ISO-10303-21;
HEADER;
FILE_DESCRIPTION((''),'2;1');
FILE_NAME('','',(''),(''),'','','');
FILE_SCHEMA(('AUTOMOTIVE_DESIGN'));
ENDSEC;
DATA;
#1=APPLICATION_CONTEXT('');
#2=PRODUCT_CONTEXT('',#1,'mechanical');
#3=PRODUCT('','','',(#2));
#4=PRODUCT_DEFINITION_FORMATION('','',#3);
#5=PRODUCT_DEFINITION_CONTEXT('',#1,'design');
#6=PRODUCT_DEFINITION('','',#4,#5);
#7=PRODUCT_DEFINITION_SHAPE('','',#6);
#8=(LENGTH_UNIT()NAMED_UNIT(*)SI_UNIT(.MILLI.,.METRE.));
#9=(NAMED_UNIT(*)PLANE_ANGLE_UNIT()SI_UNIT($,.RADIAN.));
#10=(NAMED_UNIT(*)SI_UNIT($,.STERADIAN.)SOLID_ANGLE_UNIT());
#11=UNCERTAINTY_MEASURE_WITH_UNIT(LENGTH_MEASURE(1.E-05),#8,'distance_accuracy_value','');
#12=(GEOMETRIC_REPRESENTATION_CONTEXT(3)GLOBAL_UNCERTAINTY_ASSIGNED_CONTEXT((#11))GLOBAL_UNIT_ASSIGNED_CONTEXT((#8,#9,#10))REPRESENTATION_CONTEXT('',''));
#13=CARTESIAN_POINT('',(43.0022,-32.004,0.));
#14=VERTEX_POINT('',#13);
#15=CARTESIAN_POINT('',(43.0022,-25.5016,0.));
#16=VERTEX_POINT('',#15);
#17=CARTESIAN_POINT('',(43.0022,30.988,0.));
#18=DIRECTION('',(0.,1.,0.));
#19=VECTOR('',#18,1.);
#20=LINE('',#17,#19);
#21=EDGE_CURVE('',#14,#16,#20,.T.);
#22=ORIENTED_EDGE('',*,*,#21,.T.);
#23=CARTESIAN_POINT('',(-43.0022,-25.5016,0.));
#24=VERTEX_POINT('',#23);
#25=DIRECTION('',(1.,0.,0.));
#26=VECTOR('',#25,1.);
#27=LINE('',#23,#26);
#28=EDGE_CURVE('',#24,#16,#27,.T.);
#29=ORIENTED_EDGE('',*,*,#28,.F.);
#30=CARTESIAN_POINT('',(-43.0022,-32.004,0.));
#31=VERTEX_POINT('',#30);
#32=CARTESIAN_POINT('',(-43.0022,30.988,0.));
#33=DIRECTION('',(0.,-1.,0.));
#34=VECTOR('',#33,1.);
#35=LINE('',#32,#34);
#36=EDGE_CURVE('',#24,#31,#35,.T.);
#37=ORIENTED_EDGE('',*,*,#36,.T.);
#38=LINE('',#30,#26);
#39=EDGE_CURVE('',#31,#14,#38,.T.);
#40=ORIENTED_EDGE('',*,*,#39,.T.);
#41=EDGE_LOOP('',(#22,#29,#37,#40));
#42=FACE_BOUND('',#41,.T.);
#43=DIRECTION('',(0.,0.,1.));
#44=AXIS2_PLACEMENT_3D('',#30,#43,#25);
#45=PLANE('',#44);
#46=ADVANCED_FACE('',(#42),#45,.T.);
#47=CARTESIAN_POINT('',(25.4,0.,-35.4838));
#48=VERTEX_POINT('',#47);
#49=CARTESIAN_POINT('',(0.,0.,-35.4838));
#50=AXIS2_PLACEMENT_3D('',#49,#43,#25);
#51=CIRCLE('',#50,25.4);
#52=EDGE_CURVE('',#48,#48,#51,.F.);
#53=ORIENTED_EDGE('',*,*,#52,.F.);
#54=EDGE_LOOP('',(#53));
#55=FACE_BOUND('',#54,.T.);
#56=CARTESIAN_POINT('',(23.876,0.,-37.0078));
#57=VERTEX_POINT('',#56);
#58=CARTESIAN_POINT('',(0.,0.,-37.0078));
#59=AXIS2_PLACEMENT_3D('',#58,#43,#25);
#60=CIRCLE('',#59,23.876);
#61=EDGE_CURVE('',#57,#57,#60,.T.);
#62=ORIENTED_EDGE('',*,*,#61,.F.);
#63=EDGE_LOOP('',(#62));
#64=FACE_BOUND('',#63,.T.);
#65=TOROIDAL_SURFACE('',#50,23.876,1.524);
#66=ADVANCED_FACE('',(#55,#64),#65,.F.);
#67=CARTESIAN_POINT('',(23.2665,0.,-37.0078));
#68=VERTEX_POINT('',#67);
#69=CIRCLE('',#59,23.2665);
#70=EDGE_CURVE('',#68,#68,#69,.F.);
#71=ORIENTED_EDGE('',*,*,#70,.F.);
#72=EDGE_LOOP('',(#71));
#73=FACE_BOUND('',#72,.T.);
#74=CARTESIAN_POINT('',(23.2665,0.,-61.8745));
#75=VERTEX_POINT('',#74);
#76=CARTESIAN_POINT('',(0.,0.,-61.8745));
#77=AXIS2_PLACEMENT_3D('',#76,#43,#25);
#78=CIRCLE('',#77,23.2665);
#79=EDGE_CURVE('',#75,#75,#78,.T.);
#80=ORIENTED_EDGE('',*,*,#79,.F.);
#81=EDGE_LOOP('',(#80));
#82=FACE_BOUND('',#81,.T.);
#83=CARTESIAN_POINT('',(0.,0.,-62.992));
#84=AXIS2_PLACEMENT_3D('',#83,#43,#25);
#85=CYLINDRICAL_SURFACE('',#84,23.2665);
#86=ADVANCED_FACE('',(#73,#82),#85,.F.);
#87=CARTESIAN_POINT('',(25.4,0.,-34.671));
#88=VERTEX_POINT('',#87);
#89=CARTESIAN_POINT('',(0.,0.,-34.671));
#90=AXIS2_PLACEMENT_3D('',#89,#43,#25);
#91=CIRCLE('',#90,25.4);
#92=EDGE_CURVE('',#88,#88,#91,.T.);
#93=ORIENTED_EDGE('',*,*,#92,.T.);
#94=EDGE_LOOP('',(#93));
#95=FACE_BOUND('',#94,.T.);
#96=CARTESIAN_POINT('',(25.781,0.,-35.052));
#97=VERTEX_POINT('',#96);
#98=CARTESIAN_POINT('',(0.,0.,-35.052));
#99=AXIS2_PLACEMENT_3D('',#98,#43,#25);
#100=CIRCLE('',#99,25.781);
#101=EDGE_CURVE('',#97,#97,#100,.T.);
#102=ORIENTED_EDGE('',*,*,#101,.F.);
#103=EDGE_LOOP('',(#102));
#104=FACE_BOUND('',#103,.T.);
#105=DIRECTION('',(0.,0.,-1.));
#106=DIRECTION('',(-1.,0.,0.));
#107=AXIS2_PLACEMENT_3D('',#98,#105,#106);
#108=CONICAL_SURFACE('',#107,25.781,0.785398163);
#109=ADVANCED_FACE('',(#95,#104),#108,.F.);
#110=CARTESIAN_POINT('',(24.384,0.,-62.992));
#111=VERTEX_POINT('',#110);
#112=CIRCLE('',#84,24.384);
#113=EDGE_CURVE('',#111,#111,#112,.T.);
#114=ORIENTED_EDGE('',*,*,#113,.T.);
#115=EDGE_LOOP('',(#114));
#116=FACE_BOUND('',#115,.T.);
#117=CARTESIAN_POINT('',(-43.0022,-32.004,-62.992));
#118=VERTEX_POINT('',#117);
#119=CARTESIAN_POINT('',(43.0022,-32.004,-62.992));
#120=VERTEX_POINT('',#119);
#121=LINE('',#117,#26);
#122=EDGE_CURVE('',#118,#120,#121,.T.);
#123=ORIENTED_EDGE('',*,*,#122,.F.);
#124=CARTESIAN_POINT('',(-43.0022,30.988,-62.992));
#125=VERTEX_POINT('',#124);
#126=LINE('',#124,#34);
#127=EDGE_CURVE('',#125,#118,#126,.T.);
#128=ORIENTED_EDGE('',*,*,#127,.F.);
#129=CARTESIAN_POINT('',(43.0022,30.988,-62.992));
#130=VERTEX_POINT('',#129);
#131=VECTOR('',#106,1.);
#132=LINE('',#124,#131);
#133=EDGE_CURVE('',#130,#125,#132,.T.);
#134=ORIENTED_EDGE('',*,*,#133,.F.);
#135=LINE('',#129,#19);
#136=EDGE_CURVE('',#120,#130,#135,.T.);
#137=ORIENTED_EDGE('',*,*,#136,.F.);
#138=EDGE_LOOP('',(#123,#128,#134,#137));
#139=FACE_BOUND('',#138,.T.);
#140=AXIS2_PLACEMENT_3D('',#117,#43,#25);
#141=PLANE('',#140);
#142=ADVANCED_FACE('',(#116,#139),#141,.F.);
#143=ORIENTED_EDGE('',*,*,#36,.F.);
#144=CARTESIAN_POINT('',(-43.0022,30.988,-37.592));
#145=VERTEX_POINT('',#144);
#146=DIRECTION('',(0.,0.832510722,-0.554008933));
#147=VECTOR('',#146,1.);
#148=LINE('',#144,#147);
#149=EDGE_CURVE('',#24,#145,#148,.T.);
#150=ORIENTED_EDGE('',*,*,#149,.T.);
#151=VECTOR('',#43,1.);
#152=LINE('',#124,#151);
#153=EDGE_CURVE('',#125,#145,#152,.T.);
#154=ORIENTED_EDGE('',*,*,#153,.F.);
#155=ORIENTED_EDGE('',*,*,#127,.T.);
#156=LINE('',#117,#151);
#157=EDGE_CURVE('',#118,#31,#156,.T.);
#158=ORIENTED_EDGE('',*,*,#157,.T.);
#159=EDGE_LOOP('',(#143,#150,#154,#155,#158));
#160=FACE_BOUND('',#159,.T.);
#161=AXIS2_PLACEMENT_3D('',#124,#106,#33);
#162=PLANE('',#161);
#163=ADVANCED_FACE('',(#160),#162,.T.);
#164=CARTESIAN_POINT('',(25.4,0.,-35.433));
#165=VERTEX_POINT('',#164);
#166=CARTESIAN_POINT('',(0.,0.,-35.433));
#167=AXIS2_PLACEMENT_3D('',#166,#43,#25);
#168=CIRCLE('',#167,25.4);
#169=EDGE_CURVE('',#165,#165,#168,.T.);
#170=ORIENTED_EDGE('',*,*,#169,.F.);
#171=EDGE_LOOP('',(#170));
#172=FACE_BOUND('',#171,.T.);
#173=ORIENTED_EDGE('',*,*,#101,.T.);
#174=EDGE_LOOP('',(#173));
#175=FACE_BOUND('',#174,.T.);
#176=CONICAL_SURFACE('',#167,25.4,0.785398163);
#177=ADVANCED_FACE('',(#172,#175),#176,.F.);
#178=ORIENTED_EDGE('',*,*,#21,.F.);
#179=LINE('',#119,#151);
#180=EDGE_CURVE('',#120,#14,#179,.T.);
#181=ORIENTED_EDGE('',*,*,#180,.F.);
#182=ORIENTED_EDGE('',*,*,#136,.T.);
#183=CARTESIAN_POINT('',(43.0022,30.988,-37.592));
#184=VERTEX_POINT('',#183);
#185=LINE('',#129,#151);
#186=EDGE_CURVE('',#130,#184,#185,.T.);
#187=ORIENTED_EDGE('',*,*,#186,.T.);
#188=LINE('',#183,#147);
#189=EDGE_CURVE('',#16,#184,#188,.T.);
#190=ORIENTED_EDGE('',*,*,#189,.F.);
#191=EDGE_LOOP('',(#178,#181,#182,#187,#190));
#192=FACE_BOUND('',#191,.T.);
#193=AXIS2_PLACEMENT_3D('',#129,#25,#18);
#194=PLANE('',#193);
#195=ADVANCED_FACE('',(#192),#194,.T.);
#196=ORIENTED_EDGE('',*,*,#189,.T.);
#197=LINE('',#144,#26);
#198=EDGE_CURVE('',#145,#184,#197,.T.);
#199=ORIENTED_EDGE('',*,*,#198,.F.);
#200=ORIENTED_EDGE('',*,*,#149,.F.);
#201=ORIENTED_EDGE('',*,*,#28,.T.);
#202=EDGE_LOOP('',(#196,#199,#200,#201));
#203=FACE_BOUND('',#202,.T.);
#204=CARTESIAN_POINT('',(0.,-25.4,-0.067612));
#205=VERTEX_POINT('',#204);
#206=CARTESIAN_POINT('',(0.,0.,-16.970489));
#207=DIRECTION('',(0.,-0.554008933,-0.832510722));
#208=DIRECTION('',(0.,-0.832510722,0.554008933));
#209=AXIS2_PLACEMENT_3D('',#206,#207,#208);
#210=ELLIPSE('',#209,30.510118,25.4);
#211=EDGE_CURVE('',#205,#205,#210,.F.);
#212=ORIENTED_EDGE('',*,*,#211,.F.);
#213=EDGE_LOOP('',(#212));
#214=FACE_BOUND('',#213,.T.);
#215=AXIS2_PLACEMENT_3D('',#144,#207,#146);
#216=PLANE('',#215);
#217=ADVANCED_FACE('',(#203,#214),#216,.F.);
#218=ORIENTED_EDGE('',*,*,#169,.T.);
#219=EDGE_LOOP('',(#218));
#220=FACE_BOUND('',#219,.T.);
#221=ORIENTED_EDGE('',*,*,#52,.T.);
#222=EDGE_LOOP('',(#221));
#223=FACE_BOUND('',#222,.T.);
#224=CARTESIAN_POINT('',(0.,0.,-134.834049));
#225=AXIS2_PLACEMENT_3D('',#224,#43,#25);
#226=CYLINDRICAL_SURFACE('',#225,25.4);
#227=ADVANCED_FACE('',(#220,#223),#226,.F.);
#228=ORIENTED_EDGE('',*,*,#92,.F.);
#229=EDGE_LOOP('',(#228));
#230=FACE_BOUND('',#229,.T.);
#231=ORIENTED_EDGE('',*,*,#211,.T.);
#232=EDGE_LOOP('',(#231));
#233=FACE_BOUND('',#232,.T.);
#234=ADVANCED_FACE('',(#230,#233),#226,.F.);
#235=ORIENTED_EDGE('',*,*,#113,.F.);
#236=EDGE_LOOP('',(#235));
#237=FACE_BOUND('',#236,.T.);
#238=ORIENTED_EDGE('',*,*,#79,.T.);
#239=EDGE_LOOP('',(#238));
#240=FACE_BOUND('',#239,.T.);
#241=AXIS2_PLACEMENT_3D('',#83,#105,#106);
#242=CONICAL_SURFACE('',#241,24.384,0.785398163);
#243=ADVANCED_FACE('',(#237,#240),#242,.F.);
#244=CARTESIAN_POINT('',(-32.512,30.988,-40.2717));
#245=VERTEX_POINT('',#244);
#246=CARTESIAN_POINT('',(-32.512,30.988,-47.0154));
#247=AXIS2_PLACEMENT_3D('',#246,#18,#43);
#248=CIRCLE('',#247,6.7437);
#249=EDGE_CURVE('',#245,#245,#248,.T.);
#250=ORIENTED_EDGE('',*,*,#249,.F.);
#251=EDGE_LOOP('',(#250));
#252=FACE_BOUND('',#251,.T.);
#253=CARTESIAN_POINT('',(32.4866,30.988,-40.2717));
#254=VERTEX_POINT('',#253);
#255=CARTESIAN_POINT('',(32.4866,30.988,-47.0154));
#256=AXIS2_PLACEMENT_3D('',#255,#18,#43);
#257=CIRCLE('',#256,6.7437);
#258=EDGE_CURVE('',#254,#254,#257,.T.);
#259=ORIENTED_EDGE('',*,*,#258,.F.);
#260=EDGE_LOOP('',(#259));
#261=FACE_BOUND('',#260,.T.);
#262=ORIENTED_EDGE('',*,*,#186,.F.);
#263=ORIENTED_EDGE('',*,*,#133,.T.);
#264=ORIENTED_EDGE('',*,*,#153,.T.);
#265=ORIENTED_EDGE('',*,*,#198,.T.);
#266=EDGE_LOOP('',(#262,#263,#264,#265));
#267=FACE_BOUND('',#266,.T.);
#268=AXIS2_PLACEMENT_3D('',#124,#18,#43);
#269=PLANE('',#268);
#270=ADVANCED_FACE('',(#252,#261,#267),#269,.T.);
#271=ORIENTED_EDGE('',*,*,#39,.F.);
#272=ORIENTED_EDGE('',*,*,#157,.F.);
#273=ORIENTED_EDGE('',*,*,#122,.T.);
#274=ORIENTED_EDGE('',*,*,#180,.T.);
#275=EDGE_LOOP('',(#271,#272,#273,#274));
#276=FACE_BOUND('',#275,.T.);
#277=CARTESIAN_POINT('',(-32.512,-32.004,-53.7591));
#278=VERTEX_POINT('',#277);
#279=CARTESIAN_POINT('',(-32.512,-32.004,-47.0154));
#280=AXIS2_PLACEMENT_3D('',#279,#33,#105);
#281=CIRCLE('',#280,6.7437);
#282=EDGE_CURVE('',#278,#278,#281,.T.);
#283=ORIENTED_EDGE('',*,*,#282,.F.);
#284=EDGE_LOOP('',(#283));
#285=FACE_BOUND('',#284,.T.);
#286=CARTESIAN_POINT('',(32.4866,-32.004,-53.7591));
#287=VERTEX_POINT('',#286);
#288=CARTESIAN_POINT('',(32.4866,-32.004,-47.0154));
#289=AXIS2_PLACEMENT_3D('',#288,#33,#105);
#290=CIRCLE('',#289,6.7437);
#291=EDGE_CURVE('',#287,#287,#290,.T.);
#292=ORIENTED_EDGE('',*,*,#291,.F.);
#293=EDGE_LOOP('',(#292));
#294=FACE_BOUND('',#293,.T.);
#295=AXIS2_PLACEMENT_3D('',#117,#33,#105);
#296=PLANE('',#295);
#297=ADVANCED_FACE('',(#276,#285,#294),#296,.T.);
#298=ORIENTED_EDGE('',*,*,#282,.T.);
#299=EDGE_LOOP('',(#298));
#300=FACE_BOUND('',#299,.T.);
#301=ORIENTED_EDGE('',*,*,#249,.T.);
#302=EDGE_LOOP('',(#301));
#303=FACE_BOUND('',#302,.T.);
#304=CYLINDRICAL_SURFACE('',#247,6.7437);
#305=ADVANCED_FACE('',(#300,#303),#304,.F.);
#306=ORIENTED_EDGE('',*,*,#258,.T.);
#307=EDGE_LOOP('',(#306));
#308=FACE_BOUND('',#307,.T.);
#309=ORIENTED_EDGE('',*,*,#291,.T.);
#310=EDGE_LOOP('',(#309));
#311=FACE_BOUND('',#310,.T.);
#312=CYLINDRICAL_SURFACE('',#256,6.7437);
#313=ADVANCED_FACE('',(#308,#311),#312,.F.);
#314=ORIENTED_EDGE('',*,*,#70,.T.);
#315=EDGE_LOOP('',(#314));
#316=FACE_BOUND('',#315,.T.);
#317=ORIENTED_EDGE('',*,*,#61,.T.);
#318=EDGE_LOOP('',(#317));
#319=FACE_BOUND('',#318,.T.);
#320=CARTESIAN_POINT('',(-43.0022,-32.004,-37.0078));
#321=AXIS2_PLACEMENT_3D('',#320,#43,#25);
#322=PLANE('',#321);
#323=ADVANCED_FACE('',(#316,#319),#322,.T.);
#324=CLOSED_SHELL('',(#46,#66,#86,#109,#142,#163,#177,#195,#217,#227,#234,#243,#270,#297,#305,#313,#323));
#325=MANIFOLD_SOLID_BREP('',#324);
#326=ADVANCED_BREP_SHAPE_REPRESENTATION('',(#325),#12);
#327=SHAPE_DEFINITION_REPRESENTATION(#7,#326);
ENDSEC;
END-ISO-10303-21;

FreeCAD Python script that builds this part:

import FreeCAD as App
import Part
import Sketcher
Q = App.Units.Quantity


def edges_at(feature, points):
    """Names of the edges that pass closest to the given points."""
    edges = feature.Shape.Edges
    near = lambda p: min(range(len(edges)), key=lambda i: edges[i].distToShape(Part.Vertex(*p))[0])
    return sorted({f"Edge{near(p) + 1}" for p in points})

doc = App.newDocument("Part")
body = doc.addObject("PartDesign::Body", "Body")

sketch1 = body.newObject("Sketcher::SketchObject", "Sketch")
sketch1.AttachmentSupport = (doc.getObject("XY_Plane"), [""])
sketch1.MapMode = "FlatFace"
sketch1.addGeometry([
    Part.LineSegment(App.Vector(-43, 31, 0), App.Vector(-43, -32, 0)),
    Part.LineSegment(App.Vector(-43, -32, 0), App.Vector(43, -32, 0)),
    Part.LineSegment(App.Vector(43, -32, 0), App.Vector(43, 31, 0)),
    Part.LineSegment(App.Vector(43, 31, 0), App.Vector(-43, 31, 0)),
    Part.Circle(App.Vector(0, 0, 0), App.Vector(0, 0, 1), 23),
], False)
sketch1.addConstraint([
    Sketcher.Constraint("Coincident", 0, 2, 1, 1),
    Sketcher.Constraint("Coincident", 1, 2, 2, 1),
    Sketcher.Constraint("Coincident", 2, 2, 3, 1),
    Sketcher.Constraint("Coincident", 3, 2, 0, 1),
    Sketcher.Constraint("Vertical", 0),
    Sketcher.Constraint("Horizontal", 1),
    Sketcher.Constraint("Vertical", 2),
    Sketcher.Constraint("Horizontal", 3),
    Sketcher.Constraint("Coincident", 4, 3, -1, 1),
    Sketcher.Constraint("DistanceY", 0, 2, 0, 1, Q("2.48 in")),
    Sketcher.Constraint("Diameter", 4, 46.533),
    Sketcher.Constraint("DistanceX", 1, 1, 1, 2, Q("3.386 in")),
    Sketcher.Constraint("DistanceY", 0, 2, -1, 1, Q("1.26 in")),
    Sketcher.Constraint("DistanceX", 0, 2, -1, 1, Q("1.693 in")),
])
pad1 = body.newObject("PartDesign::Pad", "Pad")
pad1.Profile = sketch1
pad1.Length = Q("2.48 in")
pad1.Reversed = True

sketch2 = body.newObject("Sketcher::SketchObject", "Sketch001")
sketch2.AttachmentSupport = (doc.getObject("YZ_Plane"), [""])
sketch2.MapMode = "FlatFace"
sketch2.AttachmentOffset = App.Placement(App.Vector(0, 0, 1.693 * 25.4), App.Rotation())
sketch2.addGeometry([
    Part.LineSegment(App.Vector(31, -38, 0), App.Vector(31, 0, 0)),
    Part.LineSegment(App.Vector(31, 0, 0), App.Vector(-26, 0, 0)),
    Part.LineSegment(App.Vector(-26, 0, 0), App.Vector(31, -38, 0)),
], False)
sketch2.addConstraint([
    Sketcher.Constraint("Coincident", 0, 2, 1, 1),
    Sketcher.Constraint("Coincident", 1, 2, 2, 1),
    Sketcher.Constraint("Coincident", 2, 2, 0, 1),
    Sketcher.Constraint("Vertical", 0),
    Sketcher.Constraint("Horizontal", 1),
    Sketcher.Constraint("PointOnObject", 0, 2, -1),
    Sketcher.Constraint("DistanceY", 0, 1, 0, 2, Q("1.48 in")),
    Sketcher.Constraint("DistanceX", 1, 2, 1, 1, Q("2.224 in")),
    Sketcher.Constraint("DistanceX", -1, 1, 0, 2, Q("1.22 in")),
])
pocket1 = body.newObject("PartDesign::Pocket", "Pocket")
pocket1.Profile = sketch2
pocket1.Type = "ThroughAll"

sketch3 = body.newObject("Sketcher::SketchObject", "Sketch002")
sketch3.AttachmentSupport = (doc.getObject("XY_Plane"), [""])
sketch3.MapMode = "FlatFace"
sketch3.addGeometry(Part.Circle(App.Vector(0, 0, 0), App.Vector(0, 0, 1), 25), False)
sketch3.addConstraint([
    Sketcher.Constraint("Coincident", 0, 3, -1, 1),
    Sketcher.Constraint("Diameter", 0, Q("2 in")),
])
pocket2 = body.newObject("PartDesign::Pocket", "Pocket001")
pocket2.Profile = sketch3
pocket2.Length = Q("1.457 in")
doc.recompute()

fillet = body.newObject("PartDesign::Fillet", "Fillet")
fillet.Base = (pocket2, edges_at(pocket2, [(-25.4, 0, -37.008)]))
fillet.Radius = Q("0.06 in")

sketch4 = body.newObject("Sketcher::SketchObject", "Sketch003")
sketch4.AttachmentSupport = (doc.getObject("XZ_Plane"), [""])
sketch4.MapMode = "FlatFace"
sketch4.AttachmentOffset = App.Placement(App.Vector(0, 0, -1.22 * 25.4), App.Rotation())
sketch4.addGeometry([
    Part.Circle(App.Vector(-33, -47, 0), App.Vector(0, 0, 1), 7),
    Part.Circle(App.Vector(32, -47, 0), App.Vector(0, 0, 1), 7),
], False)
sketch4.addConstraint([
    Sketcher.Constraint("Equal", 0, 1),
    Sketcher.Constraint("Horizontal", 0, 3, 1, 3),
    Sketcher.Constraint("Diameter", 0, Q("0.531 in")),
    Sketcher.Constraint("DistanceX", 0, 3, -1, 1, Q("1.28 in")),
    Sketcher.Constraint("DistanceY", 0, 3, -1, 1, Q("1.851 in")),
    Sketcher.Constraint("DistanceX", -1, 1, 1, 3, Q("1.279 in")),
])
doc.recompute()
hole = body.newObject("PartDesign::Hole", "Hole")
hole.Profile = sketch4
hole.ThreadType = "None"
hole.Diameter = Q("0.531 in")
hole.DepthType = "Dimension"
hole.Depth = Q("2.48 in")
hole.DrillPoint = "Flat"
hole.Reversed = True

sketch5 = body.newObject("Sketcher::SketchObject", "Sketch004")
sketch5.AttachmentSupport = (doc.getObject("XZ_Plane"), [""])
sketch5.MapMode = "FlatFace"
sketch5.addGeometry([
    Part.LineSegment(App.Vector(-25.4, -34.7, 0), App.Vector(-25.4, -35.4, 0)),
    Part.LineSegment(App.Vector(-25.4, -35.4, 0), App.Vector(-25.8, -35.1, 0)),
    Part.LineSegment(App.Vector(-25.8, -35.1, 0), App.Vector(-25.4, -34.7, 0)),
    Part.LineSegment(App.Vector(-23.3, -61.9, 0), App.Vector(-23.3, -63, 0)),
    Part.LineSegment(App.Vector(-23.3, -63, 0), App.Vector(-24.4, -63, 0)),
    Part.LineSegment(App.Vector(-24.4, -63, 0), App.Vector(-23.3, -61.9, 0)),
], False)
sketch5.addConstraint([
    Sketcher.Constraint("Coincident", 0, 2, 1, 1),
    Sketcher.Constraint("Coincident", 1, 2, 2, 1),
    Sketcher.Constraint("Coincident", 2, 2, 0, 1),
    Sketcher.Constraint("Coincident", 3, 2, 4, 1),
    Sketcher.Constraint("Coincident", 4, 2, 5, 1),
    Sketcher.Constraint("Coincident", 5, 2, 3, 1),
    Sketcher.Constraint("Vertical", 0),
    Sketcher.Constraint("Vertical", 3),
    Sketcher.Constraint("Horizontal", 4),
    Sketcher.Constraint("Perpendicular", 1, 2),
    Sketcher.Constraint("Parallel", 2, 5),
    Sketcher.Constraint("Equal", 4, 3),
    Sketcher.Constraint("DistanceX", 0, 2, -1, 1, Q("1 in")),
    Sketcher.Constraint("DistanceY", 0, 2, 0, 1, Q("0.03 in")),
    Sketcher.Constraint("DistanceY", 3, 2, 1, 2, Q("1.1 in")),
    Sketcher.Constraint("DistanceY", 1, 2, -1, 1, Q("1.38 in")),
    Sketcher.Constraint("DistanceX", 4, 2, -1, 1, Q("0.96 in")),
    Sketcher.Constraint("DistanceX", 4, 2, 4, 1, 1.1175),
])
groove = body.newObject("PartDesign::Groove", "Groove")
groove.Profile = sketch5
groove.ReferenceAxis = (sketch5, ["V_Axis"])
groove.Angle = 360

doc.recompute()
